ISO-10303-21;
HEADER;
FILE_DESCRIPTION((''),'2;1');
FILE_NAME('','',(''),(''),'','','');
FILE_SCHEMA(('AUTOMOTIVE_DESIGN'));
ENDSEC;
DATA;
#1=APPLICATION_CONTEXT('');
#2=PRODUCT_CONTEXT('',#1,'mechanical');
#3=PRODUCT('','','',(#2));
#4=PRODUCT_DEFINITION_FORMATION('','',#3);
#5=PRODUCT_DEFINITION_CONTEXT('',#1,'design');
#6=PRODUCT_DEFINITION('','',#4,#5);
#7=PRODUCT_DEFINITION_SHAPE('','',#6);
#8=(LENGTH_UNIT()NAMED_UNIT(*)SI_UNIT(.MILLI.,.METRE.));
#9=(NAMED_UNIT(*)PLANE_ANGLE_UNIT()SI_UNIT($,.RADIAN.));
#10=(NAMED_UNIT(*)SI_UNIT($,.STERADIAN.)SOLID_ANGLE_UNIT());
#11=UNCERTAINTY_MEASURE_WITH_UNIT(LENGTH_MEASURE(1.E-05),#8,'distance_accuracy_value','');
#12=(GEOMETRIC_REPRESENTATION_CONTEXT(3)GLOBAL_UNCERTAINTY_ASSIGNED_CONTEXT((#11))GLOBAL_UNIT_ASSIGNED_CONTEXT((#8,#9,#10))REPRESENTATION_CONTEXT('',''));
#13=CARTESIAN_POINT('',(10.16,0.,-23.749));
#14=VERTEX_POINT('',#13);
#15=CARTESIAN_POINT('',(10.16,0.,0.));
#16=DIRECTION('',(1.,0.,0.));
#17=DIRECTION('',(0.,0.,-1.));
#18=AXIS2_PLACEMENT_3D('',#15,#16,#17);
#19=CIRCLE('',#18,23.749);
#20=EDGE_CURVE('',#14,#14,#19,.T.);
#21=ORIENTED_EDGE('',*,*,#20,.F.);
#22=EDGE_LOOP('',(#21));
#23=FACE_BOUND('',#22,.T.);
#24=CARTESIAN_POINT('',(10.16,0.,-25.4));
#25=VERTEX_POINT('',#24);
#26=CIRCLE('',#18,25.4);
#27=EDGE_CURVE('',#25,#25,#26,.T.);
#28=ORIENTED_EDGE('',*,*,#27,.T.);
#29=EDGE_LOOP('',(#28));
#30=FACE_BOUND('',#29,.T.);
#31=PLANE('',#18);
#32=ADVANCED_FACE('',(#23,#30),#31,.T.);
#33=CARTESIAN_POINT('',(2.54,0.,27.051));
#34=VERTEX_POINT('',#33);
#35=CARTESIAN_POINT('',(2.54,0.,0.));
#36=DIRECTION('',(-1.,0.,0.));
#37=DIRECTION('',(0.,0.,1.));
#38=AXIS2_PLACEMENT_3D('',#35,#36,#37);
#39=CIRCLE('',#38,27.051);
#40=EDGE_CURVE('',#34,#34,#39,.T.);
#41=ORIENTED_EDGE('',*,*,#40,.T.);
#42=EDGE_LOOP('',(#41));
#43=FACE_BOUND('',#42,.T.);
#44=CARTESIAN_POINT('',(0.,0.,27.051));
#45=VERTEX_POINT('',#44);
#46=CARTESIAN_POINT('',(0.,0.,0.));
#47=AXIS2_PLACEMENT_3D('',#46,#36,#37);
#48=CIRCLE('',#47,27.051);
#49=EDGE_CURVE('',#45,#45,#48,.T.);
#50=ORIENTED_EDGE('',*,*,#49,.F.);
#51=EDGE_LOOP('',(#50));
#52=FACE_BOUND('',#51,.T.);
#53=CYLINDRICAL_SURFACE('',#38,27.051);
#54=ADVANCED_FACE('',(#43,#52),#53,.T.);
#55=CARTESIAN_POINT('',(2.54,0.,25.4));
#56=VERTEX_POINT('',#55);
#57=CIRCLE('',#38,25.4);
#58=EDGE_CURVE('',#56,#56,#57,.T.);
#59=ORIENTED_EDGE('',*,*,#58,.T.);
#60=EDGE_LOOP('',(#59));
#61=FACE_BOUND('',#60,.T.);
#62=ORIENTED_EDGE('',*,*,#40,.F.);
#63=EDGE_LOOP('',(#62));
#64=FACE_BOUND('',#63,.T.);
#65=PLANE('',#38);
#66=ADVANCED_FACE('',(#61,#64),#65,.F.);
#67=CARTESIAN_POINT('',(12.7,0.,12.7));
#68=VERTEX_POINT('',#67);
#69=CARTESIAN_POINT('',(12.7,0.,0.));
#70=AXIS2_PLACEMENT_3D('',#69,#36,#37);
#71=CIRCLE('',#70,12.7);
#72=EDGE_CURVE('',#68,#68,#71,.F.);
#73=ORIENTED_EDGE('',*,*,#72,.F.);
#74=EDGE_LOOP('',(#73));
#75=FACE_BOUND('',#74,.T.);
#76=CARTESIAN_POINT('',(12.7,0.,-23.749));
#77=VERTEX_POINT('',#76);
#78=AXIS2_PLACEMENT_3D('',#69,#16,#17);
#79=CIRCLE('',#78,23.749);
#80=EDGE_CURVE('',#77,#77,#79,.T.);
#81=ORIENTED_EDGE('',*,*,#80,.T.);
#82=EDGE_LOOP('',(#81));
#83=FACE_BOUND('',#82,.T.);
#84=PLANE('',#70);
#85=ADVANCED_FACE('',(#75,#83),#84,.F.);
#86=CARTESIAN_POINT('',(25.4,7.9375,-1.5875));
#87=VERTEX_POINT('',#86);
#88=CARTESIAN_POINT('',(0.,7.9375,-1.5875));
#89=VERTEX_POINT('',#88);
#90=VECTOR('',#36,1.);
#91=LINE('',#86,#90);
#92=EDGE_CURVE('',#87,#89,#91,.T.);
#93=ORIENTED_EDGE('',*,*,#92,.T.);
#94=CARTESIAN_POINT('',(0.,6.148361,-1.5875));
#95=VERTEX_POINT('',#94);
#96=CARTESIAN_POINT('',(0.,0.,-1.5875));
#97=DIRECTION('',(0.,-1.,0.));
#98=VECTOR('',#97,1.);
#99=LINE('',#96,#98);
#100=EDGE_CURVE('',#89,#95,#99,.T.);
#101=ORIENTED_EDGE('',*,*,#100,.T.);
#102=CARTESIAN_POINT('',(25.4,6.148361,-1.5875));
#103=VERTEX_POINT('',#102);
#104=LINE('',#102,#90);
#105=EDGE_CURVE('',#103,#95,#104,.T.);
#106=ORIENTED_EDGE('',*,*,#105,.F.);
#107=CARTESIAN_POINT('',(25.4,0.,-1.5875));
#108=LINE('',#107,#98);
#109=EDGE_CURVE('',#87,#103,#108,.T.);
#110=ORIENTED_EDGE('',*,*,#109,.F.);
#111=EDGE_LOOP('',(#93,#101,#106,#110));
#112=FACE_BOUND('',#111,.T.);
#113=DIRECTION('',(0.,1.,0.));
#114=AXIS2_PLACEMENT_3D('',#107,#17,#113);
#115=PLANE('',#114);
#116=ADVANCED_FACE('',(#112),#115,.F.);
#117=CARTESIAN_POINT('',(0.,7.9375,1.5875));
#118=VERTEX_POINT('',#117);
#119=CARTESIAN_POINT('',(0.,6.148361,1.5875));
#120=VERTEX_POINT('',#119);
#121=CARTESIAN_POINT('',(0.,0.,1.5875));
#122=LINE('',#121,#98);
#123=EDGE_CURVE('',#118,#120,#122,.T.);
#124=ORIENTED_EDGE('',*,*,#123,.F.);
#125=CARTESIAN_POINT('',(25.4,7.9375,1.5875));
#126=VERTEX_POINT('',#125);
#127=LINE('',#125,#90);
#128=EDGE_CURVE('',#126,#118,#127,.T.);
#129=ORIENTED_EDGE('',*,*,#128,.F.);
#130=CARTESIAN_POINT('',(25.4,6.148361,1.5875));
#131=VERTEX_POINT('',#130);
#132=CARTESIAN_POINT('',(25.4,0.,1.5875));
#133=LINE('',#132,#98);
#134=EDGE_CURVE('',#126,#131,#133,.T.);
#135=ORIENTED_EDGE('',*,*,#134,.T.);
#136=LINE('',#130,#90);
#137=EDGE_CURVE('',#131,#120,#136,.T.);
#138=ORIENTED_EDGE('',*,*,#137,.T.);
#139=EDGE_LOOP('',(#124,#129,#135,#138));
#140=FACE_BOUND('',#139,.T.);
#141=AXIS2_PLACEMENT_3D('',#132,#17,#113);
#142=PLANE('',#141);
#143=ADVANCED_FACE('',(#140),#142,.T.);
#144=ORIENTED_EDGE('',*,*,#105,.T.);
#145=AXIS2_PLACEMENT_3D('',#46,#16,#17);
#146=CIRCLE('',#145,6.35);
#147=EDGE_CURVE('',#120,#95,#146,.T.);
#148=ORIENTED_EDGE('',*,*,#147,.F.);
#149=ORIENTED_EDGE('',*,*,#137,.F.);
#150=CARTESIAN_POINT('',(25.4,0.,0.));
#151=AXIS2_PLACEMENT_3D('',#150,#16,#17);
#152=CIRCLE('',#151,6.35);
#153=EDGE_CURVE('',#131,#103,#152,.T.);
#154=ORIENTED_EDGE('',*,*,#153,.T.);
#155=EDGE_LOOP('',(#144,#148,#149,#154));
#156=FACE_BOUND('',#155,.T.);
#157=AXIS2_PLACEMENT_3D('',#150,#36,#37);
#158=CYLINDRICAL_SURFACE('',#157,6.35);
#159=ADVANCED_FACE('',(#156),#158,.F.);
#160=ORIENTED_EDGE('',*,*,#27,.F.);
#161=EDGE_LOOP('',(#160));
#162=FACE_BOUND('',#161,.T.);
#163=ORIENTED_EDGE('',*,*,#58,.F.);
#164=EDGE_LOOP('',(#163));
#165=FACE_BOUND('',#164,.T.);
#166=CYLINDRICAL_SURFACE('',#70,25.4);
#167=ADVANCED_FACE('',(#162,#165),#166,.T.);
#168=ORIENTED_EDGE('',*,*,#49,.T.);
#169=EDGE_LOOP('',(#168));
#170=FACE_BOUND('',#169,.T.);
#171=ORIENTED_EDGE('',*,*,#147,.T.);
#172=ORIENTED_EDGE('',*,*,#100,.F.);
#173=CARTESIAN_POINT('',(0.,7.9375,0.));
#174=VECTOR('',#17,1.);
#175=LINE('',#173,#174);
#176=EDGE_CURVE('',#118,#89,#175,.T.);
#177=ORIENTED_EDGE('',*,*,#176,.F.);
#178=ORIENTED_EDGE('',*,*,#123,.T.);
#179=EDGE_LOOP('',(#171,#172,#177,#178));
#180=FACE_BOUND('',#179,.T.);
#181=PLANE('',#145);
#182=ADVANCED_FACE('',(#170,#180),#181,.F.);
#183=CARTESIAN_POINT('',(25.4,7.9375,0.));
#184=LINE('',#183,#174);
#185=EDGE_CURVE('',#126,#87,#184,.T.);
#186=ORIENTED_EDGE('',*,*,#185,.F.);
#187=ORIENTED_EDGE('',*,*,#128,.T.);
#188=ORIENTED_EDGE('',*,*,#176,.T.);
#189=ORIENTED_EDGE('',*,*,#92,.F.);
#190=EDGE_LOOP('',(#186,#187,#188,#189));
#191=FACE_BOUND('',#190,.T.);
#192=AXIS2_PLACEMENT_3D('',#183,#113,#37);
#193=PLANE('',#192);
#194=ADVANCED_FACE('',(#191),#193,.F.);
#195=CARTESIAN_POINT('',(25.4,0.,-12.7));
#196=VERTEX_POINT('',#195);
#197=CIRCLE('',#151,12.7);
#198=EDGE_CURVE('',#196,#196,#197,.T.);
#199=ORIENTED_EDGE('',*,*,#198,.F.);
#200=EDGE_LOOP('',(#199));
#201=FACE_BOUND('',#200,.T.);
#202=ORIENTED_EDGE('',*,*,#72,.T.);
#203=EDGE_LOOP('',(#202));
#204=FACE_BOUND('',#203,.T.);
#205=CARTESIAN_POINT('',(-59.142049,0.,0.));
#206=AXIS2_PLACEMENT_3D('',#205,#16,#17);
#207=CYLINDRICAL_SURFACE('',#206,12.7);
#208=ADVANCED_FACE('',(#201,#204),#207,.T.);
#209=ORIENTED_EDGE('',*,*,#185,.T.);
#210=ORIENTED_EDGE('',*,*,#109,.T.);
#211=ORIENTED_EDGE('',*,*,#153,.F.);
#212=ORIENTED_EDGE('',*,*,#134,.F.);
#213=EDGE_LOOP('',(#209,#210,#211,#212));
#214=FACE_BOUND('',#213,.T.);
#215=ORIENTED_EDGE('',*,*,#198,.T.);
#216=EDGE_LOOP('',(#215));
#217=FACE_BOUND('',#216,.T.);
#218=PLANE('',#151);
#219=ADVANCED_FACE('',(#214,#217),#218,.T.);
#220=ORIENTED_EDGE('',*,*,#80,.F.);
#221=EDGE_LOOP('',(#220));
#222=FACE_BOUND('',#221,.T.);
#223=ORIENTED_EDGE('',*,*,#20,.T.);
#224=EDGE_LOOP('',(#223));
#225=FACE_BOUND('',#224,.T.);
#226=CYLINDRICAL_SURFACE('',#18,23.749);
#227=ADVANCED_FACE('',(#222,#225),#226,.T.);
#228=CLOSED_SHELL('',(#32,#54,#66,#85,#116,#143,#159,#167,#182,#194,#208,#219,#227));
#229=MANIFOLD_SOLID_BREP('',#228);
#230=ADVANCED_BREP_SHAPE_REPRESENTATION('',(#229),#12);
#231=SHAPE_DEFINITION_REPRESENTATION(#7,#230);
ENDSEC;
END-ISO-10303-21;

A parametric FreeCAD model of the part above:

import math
import FreeCAD as App
import Part
import Sketcher
from FreeCAD import Vector
Q = App.Units.Quantity

doc = App.newDocument("Part")
body = doc.addObject("PartDesign::Body", "Body")

sketch1 = body.newObject("Sketcher::SketchObject", "Sketch")
sketch1.AttachmentSupport = (doc.getObject("YZ_Plane"), [""])
sketch1.MapMode = "FlatFace"
sketch1.addGeometry([
    Part.Circle(Vector(0, 0, 0), Vector(0, 0, 1), 22.225),
    Part.ArcOfCircle(Part.Circle(Vector(0, 0, 0), Vector(0, 0, 1), 6.35), math.radians(14.477512), math.radians(270)),
    Part.LineSegment(Vector(6.148361, 1.5875, 0), Vector(7.9375, 1.5875, 0)),
    Part.LineSegment(Vector(7.9375, 1.5875, 0), Vector(7.9375, -1.5875, 0)),
    Part.LineSegment(Vector(7.9375, -1.5875, 0), Vector(6.148361, -1.5875, 0)),
    Part.ArcOfCircle(Part.Circle(Vector(0, 0, 0), Vector(0, 0, 1), 6.35), math.radians(-90), math.radians(-14.477512)),
], False)
sketch1.addConstraint([
    Sketcher.Constraint("Coincident", 1, 1, 2, 1),
    Sketcher.Constraint("Coincident", 2, 2, 3, 1),
    Sketcher.Constraint("Coincident", 3, 2, 4, 1),
    Sketcher.Constraint("Coincident", 4, 2, 5, 2),
    Sketcher.Constraint("Tangent", 5, 1, 1, 2),
    Sketcher.Constraint("Horizontal", 2),
    Sketcher.Constraint("Vertical", 3),
    Sketcher.Constraint("Horizontal", 4),
    Sketcher.Constraint("Coincident", 0, 3, -1, 1),
    Sketcher.Constraint("Coincident", 1, 3, -1, 1),
    Sketcher.Constraint("Equal", 1, 5),
    Sketcher.Constraint("PointOnObject", 5, 1, -2),
    Sketcher.Constraint("Vertical", 1, 1, 4, 2),
    Sketcher.Constraint("Diameter", 0, Q("1.75 in")),
    Sketcher.Constraint("Radius", 1, Q("0.25 in")),
    Sketcher.Constraint("DistanceY", 3, 2, 3, 1, Q("0.125 in")),
    Sketcher.Constraint("DistanceX", -1, 1, 2, 2, Q("0.3125 in")),
])
pad1 = body.newObject("PartDesign::Pad", "Pad")
pad1.Profile = sketch1
pad1.Length = Q("1 in")

sketch2 = body.newObject("Sketcher::SketchObject", "Sketch001")
sketch2.AttachmentSupport = (doc.getObject("YZ_Plane"), [""])
sketch2.MapMode = "FlatFace"
sketch2.addGeometry([
    Part.Circle(Vector(0, 0, 0), Vector(0, 0, 1), 25.4),
    Part.Circle(Vector(0, 0, 0), Vector(0, 0, 1), 10.914062),
], False)
sketch2.addConstraint([
    Sketcher.Constraint("Coincident", 0, 3, -1, 1),
    Sketcher.Constraint("Coincident", 1, 3, -1, 1),
    Sketcher.Constraint("Diameter", 0, Q("2 in")),
    Sketcher.Constraint("Diameter", 1, Q("0.859375 in")),
])
pad2 = body.newObject("PartDesign::Pad", "Pad001")
pad2.Profile = sketch2
pad2.Length = Q("0.5 in")

sketch3 = body.newObject("Sketcher::SketchObject", "Sketch002")
sketch3.AttachmentSupport = (doc.getObject("YZ_Plane"), [""])
sketch3.MapMode = "FlatFace"
sketch3.AttachmentOffset = App.Placement(Vector(0, 0, 1 * 25.4), App.Rotation())
sketch3.addGeometry([
    Part.Circle(Vector(0, 0, 0), Vector(0, 0, 1), 25.4),
    Part.Circle(Vector(0, 0, 0), Vector(0, 0, 1), 12.7),
], False)
sketch3.addConstraint([
    Sketcher.Constraint("Coincident", 0, 3, -1, 1),
    Sketcher.Constraint("Coincident", 1, 3, -1, 1),
    Sketcher.Constraint("Diameter", 0, Q("2 in")),
    Sketcher.Constraint("Diameter", 1, Q("1 in")),
])
pocket1 = body.newObject("PartDesign::Pocket", "Pocket")
pocket1.Profile = sketch3
pocket1.Length = Q("0.5 in")

sketch4 = body.newObject("Sketcher::SketchObject", "Sketch003")
sketch4.AttachmentSupport = (doc.getObject("YZ_Plane"), [""])
sketch4.MapMode = "FlatFace"
sketch4.addGeometry([
    Part.Circle(Vector(0, 0, 0), Vector(0, 0, 1), 27.051),
    Part.Circle(Vector(0, 0, 0), Vector(0, 0, 1), 25.4),
], False)
sketch4.addConstraint([
    Sketcher.Constraint("Coincident", 0, 3, -1, 1),
    Sketcher.Constraint("Coincident", 1, 3, -1, 1),
    Sketcher.Constraint("Diameter", 1, Q("2 in")),
    Sketcher.Constraint("Diameter", 0, Q("2.13 in")),
])
pad3 = body.newObject("PartDesign::Pad", "Pad002")
pad3.Profile = sketch4
pad3.Length = Q("0.1 in")

sketch5 = body.newObject("Sketcher::SketchObject", "Sketch004")
sketch5.AttachmentSupport = (doc.getObject("YZ_Plane"), [""])
sketch5.MapMode = "FlatFace"
sketch5.AttachmentOffset = App.Placement(Vector(0, 0, 0.5 * 25.4), App.Rotation())
sketch5.addGeometry([
    Part.Circle(Vector(0, 0, 0), Vector(0, 0, 1), 25.4),
    Part.Circle(Vector(0, 0, 0), Vector(0, 0, 1), 23.749),
], False)
sketch5.addConstraint([
    Sketcher.Constraint("Coincident", 0, 3, -1, 1),
    Sketcher.Constraint("Coincident", 1, 3, -1, 1),
    Sketcher.Constraint("Diameter", 0, Q("2 in")),
    Sketcher.Constraint("Diameter", 1, Q("1.87 in")),
])
pocket2 = body.newObject("PartDesign::Pocket", "Pocket001")
pocket2.Profile = sketch5
pocket2.Length = Q("0.1 in")

doc.recompute()
